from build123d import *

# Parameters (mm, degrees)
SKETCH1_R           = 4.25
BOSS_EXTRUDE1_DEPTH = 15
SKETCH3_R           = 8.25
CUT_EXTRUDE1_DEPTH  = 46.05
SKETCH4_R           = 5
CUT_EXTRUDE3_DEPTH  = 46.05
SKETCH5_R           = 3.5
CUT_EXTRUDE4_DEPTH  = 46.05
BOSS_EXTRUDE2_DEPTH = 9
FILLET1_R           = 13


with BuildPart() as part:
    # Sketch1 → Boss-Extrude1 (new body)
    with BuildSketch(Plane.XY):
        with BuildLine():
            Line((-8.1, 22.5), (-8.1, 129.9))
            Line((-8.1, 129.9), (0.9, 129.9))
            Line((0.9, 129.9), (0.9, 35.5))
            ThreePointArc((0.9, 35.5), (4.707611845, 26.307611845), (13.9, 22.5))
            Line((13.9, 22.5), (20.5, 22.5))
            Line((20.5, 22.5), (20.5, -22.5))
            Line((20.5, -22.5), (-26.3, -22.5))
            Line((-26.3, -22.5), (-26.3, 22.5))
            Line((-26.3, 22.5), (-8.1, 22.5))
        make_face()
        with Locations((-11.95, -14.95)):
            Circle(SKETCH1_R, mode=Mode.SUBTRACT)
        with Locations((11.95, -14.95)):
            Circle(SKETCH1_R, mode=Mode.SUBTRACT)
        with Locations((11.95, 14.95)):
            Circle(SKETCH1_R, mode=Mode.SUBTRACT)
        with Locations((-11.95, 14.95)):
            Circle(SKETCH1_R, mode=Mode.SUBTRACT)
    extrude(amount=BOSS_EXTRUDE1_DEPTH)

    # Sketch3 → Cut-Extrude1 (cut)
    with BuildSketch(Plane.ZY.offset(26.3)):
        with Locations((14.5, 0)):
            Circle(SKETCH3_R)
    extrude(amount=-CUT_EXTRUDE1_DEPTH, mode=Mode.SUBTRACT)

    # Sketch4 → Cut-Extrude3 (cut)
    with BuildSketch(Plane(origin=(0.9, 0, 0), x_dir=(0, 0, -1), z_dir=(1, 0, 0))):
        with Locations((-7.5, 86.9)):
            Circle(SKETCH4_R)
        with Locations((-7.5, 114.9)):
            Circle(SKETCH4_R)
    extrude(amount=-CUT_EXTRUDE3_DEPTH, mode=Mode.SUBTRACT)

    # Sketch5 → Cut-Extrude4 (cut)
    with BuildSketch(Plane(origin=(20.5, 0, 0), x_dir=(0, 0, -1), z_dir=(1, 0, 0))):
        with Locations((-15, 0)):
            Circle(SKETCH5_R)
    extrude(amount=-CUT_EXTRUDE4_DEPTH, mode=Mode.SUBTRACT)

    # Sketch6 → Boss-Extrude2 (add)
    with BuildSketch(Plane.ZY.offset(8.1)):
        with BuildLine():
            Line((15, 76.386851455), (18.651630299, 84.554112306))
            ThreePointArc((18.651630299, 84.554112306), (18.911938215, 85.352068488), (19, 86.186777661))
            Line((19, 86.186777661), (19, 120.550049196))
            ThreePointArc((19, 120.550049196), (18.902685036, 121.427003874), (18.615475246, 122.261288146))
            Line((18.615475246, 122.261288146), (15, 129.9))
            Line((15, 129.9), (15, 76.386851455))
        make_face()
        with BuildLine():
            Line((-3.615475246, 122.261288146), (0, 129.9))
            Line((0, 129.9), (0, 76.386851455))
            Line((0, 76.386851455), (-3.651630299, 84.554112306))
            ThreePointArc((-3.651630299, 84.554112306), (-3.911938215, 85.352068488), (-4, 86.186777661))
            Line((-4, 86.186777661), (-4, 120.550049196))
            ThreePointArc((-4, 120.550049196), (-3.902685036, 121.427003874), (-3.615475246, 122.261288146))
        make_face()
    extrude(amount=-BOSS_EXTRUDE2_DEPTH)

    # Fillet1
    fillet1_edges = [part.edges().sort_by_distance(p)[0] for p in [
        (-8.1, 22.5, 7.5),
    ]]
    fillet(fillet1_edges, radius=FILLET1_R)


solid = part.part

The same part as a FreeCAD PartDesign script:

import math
import FreeCAD as App
import Part
import Sketcher
from FreeCAD import Vector


def edges_at(feature, points):
    """Names of the edges that pass closest to the given points."""
    edges = feature.Shape.Edges
    near = lambda p: min(range(len(edges)), key=lambda i: edges[i].distToShape(Part.Vertex(*p))[0])
    return sorted({f"Edge{near(p) + 1}" for p in points})

doc = App.newDocument("Part")
params = doc.addObject("Spreadsheet::Sheet", "Params")
for row, (alias, value) in enumerate([
    ("sketch1_radius", "13 mm"),
    ("sketch1_diameter", "8.5 mm"),
    ("sketch1_width", "9 mm"),
    ("sketch1_height", "45 mm"),
    ("sketch1_width2", "18.2 mm"),
    ("pad1_length", "15 mm"),
    ("sketch2_diameter", "16.5 mm"),
    ("pocket1_length", "46.05 mm"),
    ("sketch3_diameter", "10 mm"),
    ("pocket2_length", "46.05 mm"),
    ("sketch4_diameter", "7 mm"),
    ("pocket3_length", "46.05 mm"),
    ("sketch5_radius", "4 mm"),
    ("pad2_length", "9 mm"),
    ("fillet_radius", "13 mm"),
], start=1):
    params.set(f"A{row}", alias)
    params.set(f"B{row}", "=" + value)
    params.setAlias(f"B{row}", alias)

body = doc.addObject("PartDesign::Body", "Body")

# Sketch on XY plane
sketch1 = body.newObject("Sketcher::SketchObject", "Sketch")
sketch1.AttachmentSupport = (doc.getObject("XY_Plane"), [""])
sketch1.MapMode = "FlatFace"
sketch1.addGeometry([
    Part.LineSegment(Vector(-8.1, 129.9, 0), Vector(-8.1, 22.5, 0)),  # 0
    Part.LineSegment(Vector(-8.1, 22.5, 0), Vector(-26.3, 22.5, 0)),  # 1
    Part.LineSegment(Vector(-26.3, 22.5, 0), Vector(-26.3, -22.5, 0)),  # 2
    Part.LineSegment(Vector(-26.3, -22.5, 0), Vector(20.5, -22.5, 0)),  # 3
    Part.LineSegment(Vector(20.5, -22.5, 0), Vector(20.5, 22.5, 0)),  # 4
    Part.LineSegment(Vector(20.5, 22.5, 0), Vector(13.9, 22.5, 0)),  # 5
    Part.ArcOfCircle(Part.Circle(Vector(13.9, 35.5, 0), Vector(0, 0, 1), 13), math.radians(-180), math.radians(-90)),  # 6
    Part.LineSegment(Vector(0.9, 35.5, 0), Vector(0.9, 129.9, 0)),  # 7
    Part.LineSegment(Vector(0.9, 129.9, 0), Vector(-8.1, 129.9, 0)),  # 8
    Part.Circle(Vector(11.9, -14.9, 0), Vector(0, 0, 1), 4.2),  # 9
    Part.Circle(Vector(-11.9, -14.9, 0), Vector(0, 0, 1), 4.2),  # 10
    Part.Circle(Vector(11.9, 14.9, 0), Vector(0, 0, 1), 4.2),  # 11
    Part.Circle(Vector(-11.9, 14.9, 0), Vector(0, 0, 1), 4.2),  # 12
], False)
sketch1.addConstraint([
    Sketcher.Constraint("Coincident", 0, 2, 1, 1),
    Sketcher.Constraint("Coincident", 1, 2, 2, 1),
    Sketcher.Constraint("Coincident", 2, 2, 3, 1),
    Sketcher.Constraint("Coincident", 3, 2, 4, 1),
    Sketcher.Constraint("Coincident", 4, 2, 5, 1),
    Sketcher.Constraint("Tangent", 5, 2, 6, 2),
    Sketcher.Constraint("Tangent", 6, 1, 7, 1),
    Sketcher.Constraint("Coincident", 7, 2, 8, 1),
    Sketcher.Constraint("Coincident", 8, 2, 0, 1),
    Sketcher.Constraint("Vertical", 0),
    Sketcher.Constraint("Horizontal", 1),
    Sketcher.Constraint("Vertical", 2),
    Sketcher.Constraint("Horizontal", 3),
    Sketcher.Constraint("Vertical", 4),
    Sketcher.Constraint("Horizontal", 5),
    Sketcher.Constraint("Vertical", 7),
    Sketcher.Constraint("Horizontal", 8),
    Sketcher.Constraint("Equal", 9, 10),
    Sketcher.Constraint("Equal", 10, 11),
    Sketcher.Constraint("Equal", 11, 12),
    Sketcher.Constraint("Symmetric", 10, 3, 11, 3, -1, 1),
    Sketcher.Constraint("Symmetric", 9, 3, 12, 3, -1, 1),
    Sketcher.Constraint("Symmetric", 9, 3, 10, 3, -2),
    Sketcher.Constraint("Horizontal", 1, 2, 4, 2),
    Sketcher.Constraint("Radius", 6, 13.0),
    Sketcher.Constraint("Diameter", 9, 8.5),
    Sketcher.Constraint("DistanceX", 8, 2, 8, 1, 9.0),
    Sketcher.Constraint("DistanceY", 2, 2, 2, 1, 45.0),
    Sketcher.Constraint("DistanceX", 1, 2, 1, 1, 18.2),
    Sketcher.Constraint("DistanceX", 3, 1, 3, 2, 46.8),
    Sketcher.Constraint("DistanceY", 0, 2, 0, 1, 107.4),
    Sketcher.Constraint("DistanceX", -1, 1, 6, 3, 13.9),
    Sketcher.Constraint("DistanceY", -1, 1, 6, 3, 35.5),
    Sketcher.Constraint("DistanceX", 10, 3, 9, 3, 23.9),
    Sketcher.Constraint("DistanceY", 9, 3, 11, 3, 29.9),
])
sketch1.setExpression("Constraints[24]", "Params.sketch1_radius")
sketch1.setExpression("Constraints[25]", "Params.sketch1_diameter")
sketch1.setExpression("Constraints[26]", "Params.sketch1_width")
sketch1.setExpression("Constraints[27]", "Params.sketch1_height")
sketch1.setExpression("Constraints[28]", "Params.sketch1_width2")
pad1 = body.newObject("PartDesign::Pad", "Pad")
pad1.Profile = sketch1
pad1.setExpression("Length", "Params.pad1_length")

# Sketch on YZ plane
sketch2 = body.newObject("Sketcher::SketchObject", "Sketch001")
sketch2.AttachmentSupport = (doc.getObject("YZ_Plane"), [""])
sketch2.MapMode = "FlatFace"
sketch2.AttachmentOffset = App.Placement(Vector(0, 0, -26.3), App.Rotation())
sketch2.addGeometry(Part.Circle(Vector(0, 14, 0), Vector(0, 0, 1), 8), False)
sketch2.addConstraint([
    Sketcher.Constraint("PointOnObject", 0, 3, -2),
    Sketcher.Constraint("Diameter", 0, 16.5),
    Sketcher.Constraint("DistanceY", -1, 1, 0, 3, 14.5),
])
sketch2.setExpression("Constraints[1]", "Params.sketch2_diameter")
pocket1 = body.newObject("PartDesign::Pocket", "Pocket")
pocket1.Profile = sketch2
pocket1.setExpression("Length", "Params.pocket1_length")
pocket1.Reversed = True

# Sketch on YZ plane
sketch3 = body.newObject("Sketcher::SketchObject", "Sketch002")
sketch3.AttachmentSupport = (doc.getObject("YZ_Plane"), [""])
sketch3.MapMode = "FlatFace"
sketch3.AttachmentOffset = App.Placement(Vector(0, 0, 0.9), App.Rotation())
sketch3.addGeometry([
    Part.Circle(Vector(87, 8, 0), Vector(0, 0, 1), 5),
    Part.Circle(Vector(115, 8, 0), Vector(0, 0, 1), 5),
], False)
sketch3.addConstraint([
    Sketcher.Constraint("Equal", 0, 1),
    Sketcher.Constraint("Horizontal", 0, 3, 1, 3),
    Sketcher.Constraint("Diameter", 0, 10.0),
    Sketcher.Constraint("DistanceX", 0, 3, 1, 3, 28.0),
    Sketcher.Constraint("DistanceX", -1, 1, 0, 3, 86.9),
    Sketcher.Constraint("DistanceY", -1, 1, 0, 3, 7.5),
])
sketch3.setExpression("Constraints[2]", "Params.sketch3_diameter")
pocket2 = body.newObject("PartDesign::Pocket", "Pocket001")
pocket2.Profile = sketch3
pocket2.setExpression("Length", "Params.pocket2_length")

# Sketch on YZ plane
sketch4 = body.newObject("Sketcher::SketchObject", "Sketch003")
sketch4.AttachmentSupport = (doc.getObject("YZ_Plane"), [""])
sketch4.MapMode = "FlatFace"
sketch4.AttachmentOffset = App.Placement(Vector(0, 0, 20.5), App.Rotation())
sketch4.addGeometry(Part.Circle(Vector(0, 15, 0), Vector(0, 0, 1), 3.5), False)
sketch4.addConstraint([
    Sketcher.Constraint("PointOnObject", 0, 3, -2),
    Sketcher.Constraint("Diameter", 0, 7.0),
    Sketcher.Constraint("DistanceY", -1, 1, 0, 3, 15.0),
])
sketch4.setExpression("Constraints[1]", "Params.sketch4_diameter")
pocket3 = body.newObject("PartDesign::Pocket", "Pocket002")
pocket3.Profile = sketch4
pocket3.setExpression("Length", "Params.pocket3_length")

# Sketch on YZ plane
sketch5 = body.newObject("Sketcher::SketchObject", "Sketch004")
sketch5.AttachmentSupport = (doc.getObject("YZ_Plane"), [""])
sketch5.MapMode = "FlatFace"
sketch5.AttachmentOffset = App.Placement(Vector(0, 0, -8.1), App.Rotation())
sketch5.addGeometry([
    Part.LineSegment(Vector(76.4, 15, 0), Vector(84.6, 18.7, 0)),  # 0
    Part.ArcOfCircle(Part.Circle(Vector(86.2, 15, 0), Vector(0, 0, 1), 4), math.radians(90), math.radians(114)),  # 1
    Part.LineSegment(Vector(86.2, 19, 0), Vector(120.6, 19, 0)),  # 2
    Part.ArcOfCircle(Part.Circle(Vector(120.6, 15, 0), Vector(0, 0, 1), 4), math.radians(65), math.radians(90)),  # 3
    Part.LineSegment(Vector(122.3, 18.6, 0), Vector(129.9, 15, 0)),  # 4
    Part.LineSegment(Vector(129.9, 15, 0), Vector(76.4, 15, 0)),  # 5
    Part.LineSegment(Vector(129.9, 0, 0), Vector(122.3, -3.6, 0)),  # 6
    Part.ArcOfCircle(Part.Circle(Vector(120.6, 0, 0), Vector(0, 0, 1), 4), math.radians(-90), math.radians(-65)),  # 7
    Part.LineSegment(Vector(120.6, -4, 0), Vector(86.2, -4, 0)),  # 8
    Part.ArcOfCircle(Part.Circle(Vector(86.2, 0, 0), Vector(0, 0, 1), 4), math.radians(-114), math.radians(-90)),  # 9
    Part.LineSegment(Vector(84.6, -3.7, 0), Vector(76.4, 0, 0)),  # 10
    Part.LineSegment(Vector(76.4, 0, 0), Vector(129.9, 0, 0)),  # 11
], False)
sketch5.addConstraint([
    Sketcher.Constraint("Tangent", 0, 2, 1, 2),
    Sketcher.Constraint("Tangent", 1, 1, 2, 1),
    Sketcher.Constraint("Tangent", 2, 2, 3, 2),
    Sketcher.Constraint("Tangent", 3, 1, 4, 1),
    Sketcher.Constraint("Coincident", 4, 2, 5, 1),
    Sketcher.Constraint("Coincident", 5, 2, 0, 1),
    Sketcher.Constraint("Tangent", 6, 2, 7, 2),
    Sketcher.Constraint("Tangent", 7, 1, 8, 1),
    Sketcher.Constraint("Tangent", 8, 2, 9, 2),
    Sketcher.Constraint("Tangent", 9, 1, 10, 1),
    Sketcher.Constraint("Coincident", 10, 2, 11, 1),
    Sketcher.Constraint("Coincident", 11, 2, 6, 1),
    Sketcher.Constraint("Horizontal", 2),
    Sketcher.Constraint("Horizontal", 5),
    Sketcher.Constraint("Horizontal", 8),
    Sketcher.Constraint("Horizontal", 11),
    Sketcher.Constraint("Equal", 1, 3),
    Sketcher.Constraint("Equal", 3, 7),
    Sketcher.Constraint("Equal", 7, 9),
    Sketcher.Constraint("PointOnObject", 7, 3, -1),
    Sketcher.Constraint("PointOnObject", 10, 2, -1),
    Sketcher.Constraint("Horizontal", 3, 3, 4, 2),
    Sketcher.Constraint("Vertical", 3, 3, 7, 3),
    Sketcher.Constraint("Vertical", 1, 3, 9, 3),
    Sketcher.Constraint("Vertical", 3, 1, 6, 2),
    Sketcher.Constraint("Vertical", 0, 2, 9, 1),
    Sketcher.Constraint("Radius", 1, 4.0),
    Sketcher.Constraint("DistanceY", -1, 1, 1, 3, 15.0),
    Sketcher.Constraint("DistanceX", -1, 1, 4, 2, 129.9),
    Sketcher.Constraint("DistanceX", 2, 1, 2, 2, 34.363272),
    Sketcher.Constraint("DistanceX", 5, 2, 5, 1, 53.513149),
    Sketcher.Constraint("Distance", 4, 8.451129),
])
sketch5.setExpression("Constraints[26]", "Params.sketch5_radius")
pad2 = body.newObject("PartDesign::Pad", "Pad001")
pad2.Profile = sketch5
pad2.setExpression("Length", "Params.pad2_length")
doc.recompute()

fillet = body.newObject("PartDesign::Fillet", "Fillet")
fillet.Base = (pad2, edges_at(pad2, [(-8.1, 22.5, 7.5)]))
fillet.setExpression("Radius", "Params.fillet_radius")

doc.recompute()
